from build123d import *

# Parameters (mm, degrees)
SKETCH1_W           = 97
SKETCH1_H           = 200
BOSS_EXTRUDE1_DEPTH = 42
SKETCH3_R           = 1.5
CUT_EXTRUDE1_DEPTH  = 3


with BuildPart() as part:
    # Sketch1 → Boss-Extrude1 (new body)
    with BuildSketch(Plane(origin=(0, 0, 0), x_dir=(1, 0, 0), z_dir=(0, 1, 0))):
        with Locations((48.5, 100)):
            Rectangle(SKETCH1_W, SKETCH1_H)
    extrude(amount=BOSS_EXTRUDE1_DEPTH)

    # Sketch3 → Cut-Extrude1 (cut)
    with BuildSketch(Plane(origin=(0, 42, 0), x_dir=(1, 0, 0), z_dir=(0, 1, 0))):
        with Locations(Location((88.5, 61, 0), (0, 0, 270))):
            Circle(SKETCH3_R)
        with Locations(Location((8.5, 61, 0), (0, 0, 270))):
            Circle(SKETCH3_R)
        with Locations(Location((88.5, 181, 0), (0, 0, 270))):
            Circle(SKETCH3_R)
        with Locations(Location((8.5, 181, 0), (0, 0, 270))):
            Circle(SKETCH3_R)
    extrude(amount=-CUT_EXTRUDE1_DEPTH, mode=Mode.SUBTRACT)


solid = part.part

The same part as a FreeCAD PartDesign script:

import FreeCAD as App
import Part
import Sketcher

V = App.Vector
Q = App.Units.Quantity


def add_polygon(sketch, points):
    """Adds a closed chain of lines whose ends are joined by coincident constraints."""
    first, n = sketch.GeometryCount, len(points)
    for a, b in zip(points, points[1:] + points[:1]):
        sketch.addGeometry(Part.LineSegment(App.Vector(*a, 0), App.Vector(*b, 0)), False)
    for i in range(n):
        sketch.addConstraint(Sketcher.Constraint("Coincident", first + i, 2, first + (i + 1) % n, 1))

doc = App.newDocument("Part")
body = doc.addObject("PartDesign::Body", "Body")

# Sketch on XZ plane
sketch1 = body.newObject("Sketcher::SketchObject", "Sketch")
sketch1.AttachmentSupport = (doc.getObject("XZ_Plane"), [""])
sketch1.MapMode = "FlatFace"
add_polygon(sketch1, [(0, -200), (0, 0), (97, 0), (97, -200)])  # lines 0-3
sketch1.addConstraint([
    Sketcher.Constraint("Vertical", 0),
    Sketcher.Constraint("Horizontal", 1),
    Sketcher.Constraint("Vertical", 2),
    Sketcher.Constraint("Horizontal", 3),
    Sketcher.Constraint("Coincident", 0, 2, -1, 1),
    Sketcher.Constraint("DistanceX", 1, 1, 1, 2, Q("97 mm")),
    Sketcher.Constraint("DistanceY", 0, 1, 0, 2, Q("200 mm")),
])
pad1 = body.newObject("PartDesign::Pad", "Pad")
pad1.Profile = sketch1
pad1.Length = 42
pad1.Reversed = True

# Sketch on XZ plane
sketch2 = body.newObject("Sketcher::SketchObject", "Sketch001")
sketch2.AttachmentSupport = (doc.getObject("XZ_Plane"), [""])
sketch2.MapMode = "FlatFace"
sketch2.AttachmentOffset = App.Placement(V(0, 0, -42), App.Rotation())
sketch2.addGeometry([
    Part.Circle(V(88.5, -61, 0), V(0, 0, 1), 1.5),
    Part.Circle(V(8.5, -61, 0), V(0, 0, 1), 1.5),
    Part.Circle(V(88.5, -181, 0), V(0, 0, 1), 1.5),
    Part.Circle(V(8.5, -181, 0), V(0, 0, 1), 1.5),
], False)
sketch2.addConstraint([
    Sketcher.Constraint("Equal", 0, 1),
    Sketcher.Constraint("Equal", 1, 2),
    Sketcher.Constraint("Equal", 2, 3),
    Sketcher.Constraint("Horizontal", 0, 3, 1, 3),
    Sketcher.Constraint("Horizontal", 2, 3, 3, 3),
    Sketcher.Constraint("Vertical", 0, 3, 2, 3),
    Sketcher.Constraint("Vertical", 1, 3, 3, 3),
    Sketcher.Constraint("Diameter", 0, Q("3 mm")),
    Sketcher.Constraint("DistanceY", 0, 3, -1, 1, Q("61 mm")),
    Sketcher.Constraint("DistanceY", 2, 3, -1, 1, Q("181 mm")),
    Sketcher.Constraint("DistanceX", 1, 3, 0, 3, Q("80 mm")),
    Sketcher.Constraint("DistanceX", -1, 1, 0, 3, Q("88.5 mm")),
])
pocket1 = body.newObject("PartDesign::Pocket", "Pocket")
pocket1.Profile = sketch2
pocket1.Length = 3
pocket1.Reversed = True

doc.recompute()
